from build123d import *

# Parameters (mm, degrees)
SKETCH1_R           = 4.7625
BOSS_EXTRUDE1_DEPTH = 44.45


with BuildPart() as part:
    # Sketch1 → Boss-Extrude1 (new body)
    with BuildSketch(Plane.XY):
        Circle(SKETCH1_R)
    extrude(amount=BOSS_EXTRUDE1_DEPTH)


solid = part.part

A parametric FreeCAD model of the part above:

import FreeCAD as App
import Part
import Sketcher
from FreeCAD import Vector
Q = App.Units.Quantity

doc = App.newDocument("Part")
params = doc.addObject("Spreadsheet::Sheet", "Params")
for row, (alias, value) in enumerate([
    ("sketch1_diameter", "0.375 in"),
    ("pad1_length", "1.75 in"),
], start=1):
    params.set(f"A{row}", alias)
    params.set(f"B{row}", "=" + value)
    params.setAlias(f"B{row}", alias)

body = doc.addObject("PartDesign::Body", "Body")

# Sketch on XY plane
sketch1 = body.newObject("Sketcher::SketchObject", "Sketch")
sketch1.AttachmentSupport = (doc.getObject("XY_Plane"), [""])
sketch1.MapMode = "FlatFace"
sketch1.addGeometry(Part.Circle(Vector(0, 0, 0), Vector(0, 0, 1), 4.8), False)
sketch1.addConstraint([
    Sketcher.Constraint("Coincident", 0, 3, -1, 1),
    Sketcher.Constraint("Diameter", 0, Q("0.375 in")),
])
sketch1.setExpression("Constraints[1]", "Params.sketch1_diameter")
pad1 = body.newObject("PartDesign::Pad", "Pad")
pad1.Profile = sketch1
pad1.setExpression("Length", "Params.pad1_length")

doc.recompute()
